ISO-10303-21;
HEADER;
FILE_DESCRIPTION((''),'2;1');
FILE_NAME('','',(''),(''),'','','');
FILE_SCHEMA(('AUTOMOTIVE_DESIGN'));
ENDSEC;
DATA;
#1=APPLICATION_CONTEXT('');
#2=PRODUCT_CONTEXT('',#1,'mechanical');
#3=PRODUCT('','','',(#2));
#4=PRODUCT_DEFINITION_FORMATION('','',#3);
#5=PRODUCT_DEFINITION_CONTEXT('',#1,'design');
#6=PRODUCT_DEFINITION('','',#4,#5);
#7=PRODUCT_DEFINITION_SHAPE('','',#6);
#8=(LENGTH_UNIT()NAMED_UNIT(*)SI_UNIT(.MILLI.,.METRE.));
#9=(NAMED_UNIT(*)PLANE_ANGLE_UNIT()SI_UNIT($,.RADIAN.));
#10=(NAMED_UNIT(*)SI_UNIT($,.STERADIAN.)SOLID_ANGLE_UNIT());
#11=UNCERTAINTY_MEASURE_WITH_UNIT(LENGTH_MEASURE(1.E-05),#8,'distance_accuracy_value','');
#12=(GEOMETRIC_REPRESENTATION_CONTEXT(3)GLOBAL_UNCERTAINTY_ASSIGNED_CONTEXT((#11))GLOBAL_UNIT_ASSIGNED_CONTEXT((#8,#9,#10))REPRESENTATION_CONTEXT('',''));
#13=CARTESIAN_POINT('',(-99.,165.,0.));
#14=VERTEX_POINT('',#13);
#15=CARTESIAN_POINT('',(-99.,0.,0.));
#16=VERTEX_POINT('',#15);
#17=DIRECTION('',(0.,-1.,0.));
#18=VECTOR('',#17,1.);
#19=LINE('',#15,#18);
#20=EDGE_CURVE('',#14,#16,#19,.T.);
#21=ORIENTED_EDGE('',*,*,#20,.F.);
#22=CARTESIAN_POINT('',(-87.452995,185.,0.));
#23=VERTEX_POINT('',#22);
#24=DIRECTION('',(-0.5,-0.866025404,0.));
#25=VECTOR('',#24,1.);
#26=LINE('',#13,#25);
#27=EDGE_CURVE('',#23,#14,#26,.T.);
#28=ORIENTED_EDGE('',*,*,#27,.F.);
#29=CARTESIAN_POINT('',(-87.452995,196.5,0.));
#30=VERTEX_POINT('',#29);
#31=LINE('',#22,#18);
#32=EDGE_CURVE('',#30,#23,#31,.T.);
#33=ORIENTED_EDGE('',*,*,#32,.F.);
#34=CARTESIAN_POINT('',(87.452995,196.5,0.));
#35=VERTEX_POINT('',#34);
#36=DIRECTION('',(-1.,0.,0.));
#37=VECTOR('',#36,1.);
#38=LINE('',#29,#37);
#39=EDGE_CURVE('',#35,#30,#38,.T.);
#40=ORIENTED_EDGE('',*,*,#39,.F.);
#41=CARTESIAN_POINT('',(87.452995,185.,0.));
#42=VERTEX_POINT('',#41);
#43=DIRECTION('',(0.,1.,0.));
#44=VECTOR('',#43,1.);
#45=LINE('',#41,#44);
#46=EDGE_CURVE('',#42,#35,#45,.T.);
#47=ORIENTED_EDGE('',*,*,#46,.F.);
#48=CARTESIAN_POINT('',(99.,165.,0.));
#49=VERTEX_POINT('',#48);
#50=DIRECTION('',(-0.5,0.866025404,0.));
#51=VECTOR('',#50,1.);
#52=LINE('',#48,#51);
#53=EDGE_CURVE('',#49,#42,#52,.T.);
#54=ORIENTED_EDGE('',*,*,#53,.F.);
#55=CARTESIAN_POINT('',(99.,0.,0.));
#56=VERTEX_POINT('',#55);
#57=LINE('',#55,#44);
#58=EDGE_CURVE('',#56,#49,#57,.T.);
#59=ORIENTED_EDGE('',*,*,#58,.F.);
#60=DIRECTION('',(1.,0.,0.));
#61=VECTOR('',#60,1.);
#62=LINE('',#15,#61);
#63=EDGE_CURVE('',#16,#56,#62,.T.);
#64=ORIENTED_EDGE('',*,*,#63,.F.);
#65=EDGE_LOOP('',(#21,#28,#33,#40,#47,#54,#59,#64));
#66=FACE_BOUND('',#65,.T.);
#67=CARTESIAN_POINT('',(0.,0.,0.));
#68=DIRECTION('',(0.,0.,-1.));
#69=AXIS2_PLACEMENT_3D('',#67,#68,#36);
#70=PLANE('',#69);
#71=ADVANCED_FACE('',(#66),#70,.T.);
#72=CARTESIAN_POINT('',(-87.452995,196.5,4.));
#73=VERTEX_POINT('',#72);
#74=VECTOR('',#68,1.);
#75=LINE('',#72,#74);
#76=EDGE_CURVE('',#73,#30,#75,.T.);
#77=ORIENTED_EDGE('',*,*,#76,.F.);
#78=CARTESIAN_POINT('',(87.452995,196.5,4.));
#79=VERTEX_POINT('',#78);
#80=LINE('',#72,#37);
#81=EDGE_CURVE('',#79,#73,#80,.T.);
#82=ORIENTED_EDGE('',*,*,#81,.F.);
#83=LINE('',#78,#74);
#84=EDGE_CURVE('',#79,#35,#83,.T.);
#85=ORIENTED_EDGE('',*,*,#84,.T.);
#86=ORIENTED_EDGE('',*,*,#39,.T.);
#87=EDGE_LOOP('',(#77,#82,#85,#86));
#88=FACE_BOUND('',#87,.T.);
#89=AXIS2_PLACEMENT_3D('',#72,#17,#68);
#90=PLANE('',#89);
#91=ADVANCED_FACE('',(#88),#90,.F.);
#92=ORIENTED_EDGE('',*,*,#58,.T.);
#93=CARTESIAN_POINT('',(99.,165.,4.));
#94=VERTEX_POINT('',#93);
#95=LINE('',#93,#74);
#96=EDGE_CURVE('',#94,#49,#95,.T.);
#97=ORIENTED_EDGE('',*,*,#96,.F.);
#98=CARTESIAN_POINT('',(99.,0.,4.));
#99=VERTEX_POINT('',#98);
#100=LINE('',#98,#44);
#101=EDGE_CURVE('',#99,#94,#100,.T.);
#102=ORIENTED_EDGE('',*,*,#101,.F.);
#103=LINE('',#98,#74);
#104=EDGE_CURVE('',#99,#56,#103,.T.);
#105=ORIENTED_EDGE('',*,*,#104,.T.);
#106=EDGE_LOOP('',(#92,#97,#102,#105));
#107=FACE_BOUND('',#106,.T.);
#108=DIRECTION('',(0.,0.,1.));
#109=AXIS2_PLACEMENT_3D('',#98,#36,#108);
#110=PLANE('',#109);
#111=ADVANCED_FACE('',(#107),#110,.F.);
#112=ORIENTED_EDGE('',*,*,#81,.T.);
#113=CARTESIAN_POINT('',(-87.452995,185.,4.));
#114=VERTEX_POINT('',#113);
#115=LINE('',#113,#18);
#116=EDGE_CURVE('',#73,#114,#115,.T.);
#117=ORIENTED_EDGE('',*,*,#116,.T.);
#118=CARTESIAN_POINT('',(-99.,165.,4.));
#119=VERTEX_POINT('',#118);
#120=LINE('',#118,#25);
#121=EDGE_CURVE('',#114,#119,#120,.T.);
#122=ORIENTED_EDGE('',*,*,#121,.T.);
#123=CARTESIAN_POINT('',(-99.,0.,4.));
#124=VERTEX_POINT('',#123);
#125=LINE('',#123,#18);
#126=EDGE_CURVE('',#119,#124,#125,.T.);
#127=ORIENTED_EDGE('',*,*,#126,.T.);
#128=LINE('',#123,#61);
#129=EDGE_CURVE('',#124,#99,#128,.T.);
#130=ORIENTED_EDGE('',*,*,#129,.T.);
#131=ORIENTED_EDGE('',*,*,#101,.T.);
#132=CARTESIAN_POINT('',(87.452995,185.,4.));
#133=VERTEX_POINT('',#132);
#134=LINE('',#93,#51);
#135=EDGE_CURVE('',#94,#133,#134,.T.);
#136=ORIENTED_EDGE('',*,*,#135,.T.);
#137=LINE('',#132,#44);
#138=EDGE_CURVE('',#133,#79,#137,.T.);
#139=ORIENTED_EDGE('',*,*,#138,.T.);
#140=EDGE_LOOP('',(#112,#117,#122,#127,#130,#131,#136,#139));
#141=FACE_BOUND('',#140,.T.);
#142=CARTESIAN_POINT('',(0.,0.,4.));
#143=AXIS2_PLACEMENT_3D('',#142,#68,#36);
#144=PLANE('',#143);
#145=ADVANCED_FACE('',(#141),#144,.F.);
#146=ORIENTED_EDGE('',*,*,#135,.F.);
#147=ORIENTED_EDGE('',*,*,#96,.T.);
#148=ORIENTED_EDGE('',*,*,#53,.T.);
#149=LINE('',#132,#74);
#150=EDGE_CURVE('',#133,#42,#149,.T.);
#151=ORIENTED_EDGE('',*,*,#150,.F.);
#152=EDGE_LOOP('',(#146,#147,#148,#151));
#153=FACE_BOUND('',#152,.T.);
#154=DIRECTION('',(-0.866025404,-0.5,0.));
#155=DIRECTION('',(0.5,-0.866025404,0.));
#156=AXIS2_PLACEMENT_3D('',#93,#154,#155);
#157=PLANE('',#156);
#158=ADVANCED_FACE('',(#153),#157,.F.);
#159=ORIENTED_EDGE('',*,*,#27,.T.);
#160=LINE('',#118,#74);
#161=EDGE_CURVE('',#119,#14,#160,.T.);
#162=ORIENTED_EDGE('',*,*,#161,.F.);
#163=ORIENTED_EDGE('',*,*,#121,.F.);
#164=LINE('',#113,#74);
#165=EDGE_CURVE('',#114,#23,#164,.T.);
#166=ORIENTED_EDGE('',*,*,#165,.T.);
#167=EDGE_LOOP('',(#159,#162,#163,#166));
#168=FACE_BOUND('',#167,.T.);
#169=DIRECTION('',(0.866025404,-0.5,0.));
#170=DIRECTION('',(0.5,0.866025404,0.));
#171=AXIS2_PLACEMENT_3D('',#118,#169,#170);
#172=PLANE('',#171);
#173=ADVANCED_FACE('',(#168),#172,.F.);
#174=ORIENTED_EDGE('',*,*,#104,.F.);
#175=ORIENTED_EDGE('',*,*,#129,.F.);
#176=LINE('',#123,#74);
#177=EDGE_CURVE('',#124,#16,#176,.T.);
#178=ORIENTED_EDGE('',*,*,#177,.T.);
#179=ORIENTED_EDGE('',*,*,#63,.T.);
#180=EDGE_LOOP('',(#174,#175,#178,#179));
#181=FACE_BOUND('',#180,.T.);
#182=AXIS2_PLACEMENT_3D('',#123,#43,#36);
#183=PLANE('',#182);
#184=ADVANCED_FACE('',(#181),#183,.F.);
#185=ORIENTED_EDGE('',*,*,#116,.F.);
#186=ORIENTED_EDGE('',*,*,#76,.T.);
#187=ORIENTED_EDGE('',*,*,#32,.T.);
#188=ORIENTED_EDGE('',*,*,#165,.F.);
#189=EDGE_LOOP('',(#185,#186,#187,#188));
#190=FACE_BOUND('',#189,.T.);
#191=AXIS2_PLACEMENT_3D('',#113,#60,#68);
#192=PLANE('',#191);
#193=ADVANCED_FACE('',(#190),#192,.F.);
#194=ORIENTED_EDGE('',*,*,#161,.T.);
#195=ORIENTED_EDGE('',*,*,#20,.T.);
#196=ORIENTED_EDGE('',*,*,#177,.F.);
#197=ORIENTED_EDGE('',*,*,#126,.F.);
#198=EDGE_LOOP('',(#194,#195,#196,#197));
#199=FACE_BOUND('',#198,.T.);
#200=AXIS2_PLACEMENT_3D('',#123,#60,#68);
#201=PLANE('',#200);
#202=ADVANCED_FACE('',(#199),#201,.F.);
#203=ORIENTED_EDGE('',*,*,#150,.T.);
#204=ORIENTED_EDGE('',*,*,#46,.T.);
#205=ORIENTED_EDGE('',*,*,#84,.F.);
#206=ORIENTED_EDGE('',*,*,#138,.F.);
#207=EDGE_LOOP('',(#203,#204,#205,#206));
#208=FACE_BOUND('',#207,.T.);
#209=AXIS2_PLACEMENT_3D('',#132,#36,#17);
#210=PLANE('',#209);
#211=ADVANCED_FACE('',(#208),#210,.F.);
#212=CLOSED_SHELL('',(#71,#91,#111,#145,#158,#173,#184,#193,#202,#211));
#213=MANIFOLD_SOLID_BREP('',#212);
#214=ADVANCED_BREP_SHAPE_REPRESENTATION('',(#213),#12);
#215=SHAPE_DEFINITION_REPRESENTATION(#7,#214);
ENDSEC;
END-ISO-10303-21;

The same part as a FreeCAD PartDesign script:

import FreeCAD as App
import Part
import Sketcher

V = App.Vector
Q = App.Units.Quantity

doc = App.newDocument("Part")
params = doc.addObject("Spreadsheet::Sheet", "Params")
for row, (alias, value) in enumerate([
    ("sketch1_width", "198 mm"),
    ("sketch1_height", "165 mm"),
    ("sketch1_height2", "11.5 mm"),
    ("pad1_length", "4 mm"),
], start=1):
    params.set(f"A{row}", alias)
    params.set(f"B{row}", "=" + value)
    params.setAlias(f"B{row}", alias)

body = doc.addObject("PartDesign::Body", "Body")

sketch1 = body.newObject("Sketcher::SketchObject", "Sketch")
sketch1.AttachmentSupport = (doc.getObject("XY_Plane"), [""])
sketch1.MapMode = "FlatFace"
sketch1.addGeometry(Part.LineSegment(V(-99, 0, 0), V(99, 0, 0)), False)
sketch1.addGeometry(Part.LineSegment(V(99, 0, 0), V(99, 165, 0)), False)
sketch1.addGeometry(Part.LineSegment(V(99, 165, 0), V(87, 185, 0)), False)
sketch1.addGeometry(Part.LineSegment(V(87, 185, 0), V(87, 196, 0)), False)
sketch1.addGeometry(Part.LineSegment(V(87, 196, 0), V(-87, 196, 0)), False)
sketch1.addGeometry(Part.LineSegment(V(-87, 196, 0), V(-87, 185, 0)), False)
sketch1.addGeometry(Part.LineSegment(V(-87, 185, 0), V(-99, 165, 0)), False)
sketch1.addGeometry(Part.LineSegment(V(-99, 165, 0), V(-99, 0, 0)), False)
sketch1.addConstraint(Sketcher.Constraint("Coincident", 0, 2, 1, 1))
sketch1.addConstraint(Sketcher.Constraint("Coincident", 1, 2, 2, 1))
sketch1.addConstraint(Sketcher.Constraint("Coincident", 2, 2, 3, 1))
sketch1.addConstraint(Sketcher.Constraint("Coincident", 3, 2, 4, 1))
sketch1.addConstraint(Sketcher.Constraint("Coincident", 4, 2, 5, 1))
sketch1.addConstraint(Sketcher.Constraint("Coincident", 5, 2, 6, 1))
sketch1.addConstraint(Sketcher.Constraint("Coincident", 6, 2, 7, 1))
sketch1.addConstraint(Sketcher.Constraint("Coincident", 7, 2, 0, 1))
sketch1.addConstraint(Sketcher.Constraint("Horizontal", 0))
sketch1.addConstraint(Sketcher.Constraint("Vertical", 1))
sketch1.addConstraint(Sketcher.Constraint("Vertical", 3))
sketch1.addConstraint(Sketcher.Constraint("Horizontal", 4))
sketch1.addConstraint(Sketcher.Constraint("Vertical", 5))
sketch1.addConstraint(Sketcher.Constraint("Vertical", 7))
sketch1.addConstraint(Sketcher.Constraint("Symmetric", 0, 2, 7, 2, -1, 1))
sketch1.addConstraint(Sketcher.Constraint("Symmetric", 2, 2, 5, 2, -2))
sketch1.addConstraint(Sketcher.Constraint("Horizontal", 1, 2, 6, 2))
sketch1.addConstraint(Sketcher.Constraint("DistanceX", 0, 1, 0, 2, 198.0))
sketch1.addConstraint(Sketcher.Constraint("DistanceY", 1, 1, 1, 2, 165.0))
sketch1.addConstraint(Sketcher.Constraint("Angle", 2, Q("120 deg")))
sketch1.addConstraint(Sketcher.Constraint("DistanceY", 3, 1, 3, 2, 11.5))
sketch1.addConstraint(Sketcher.Constraint("DistanceY", -1, 1, 2, 2, 185.0))
sketch1.setExpression("Constraints[17]", "Params.sketch1_width")
sketch1.setExpression("Constraints[18]", "Params.sketch1_height")
sketch1.setExpression("Constraints[20]", "Params.sketch1_height2")
pad1 = body.newObject("PartDesign::Pad", "Pad")
pad1.Profile = sketch1
pad1.setExpression("Length", "Params.pad1_length")

doc.recompute()
